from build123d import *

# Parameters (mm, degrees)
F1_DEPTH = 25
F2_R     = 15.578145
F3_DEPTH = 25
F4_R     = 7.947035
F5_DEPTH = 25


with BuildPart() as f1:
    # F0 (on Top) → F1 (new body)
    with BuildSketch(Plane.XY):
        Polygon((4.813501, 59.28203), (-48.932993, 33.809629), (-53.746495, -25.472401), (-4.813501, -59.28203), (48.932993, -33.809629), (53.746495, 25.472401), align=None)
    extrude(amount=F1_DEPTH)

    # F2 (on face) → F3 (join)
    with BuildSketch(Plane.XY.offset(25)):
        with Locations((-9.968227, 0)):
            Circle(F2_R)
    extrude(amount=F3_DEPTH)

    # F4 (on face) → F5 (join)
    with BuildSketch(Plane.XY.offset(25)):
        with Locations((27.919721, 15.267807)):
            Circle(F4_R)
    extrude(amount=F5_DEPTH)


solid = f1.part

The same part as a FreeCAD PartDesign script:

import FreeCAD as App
import Part
import Sketcher

V = App.Vector
Q = App.Units.Quantity


def add_polygon(sketch, points):
    """Adds a closed chain of lines whose ends are joined by coincident constraints."""
    first, n = sketch.GeometryCount, len(points)
    for a, b in zip(points, points[1:] + points[:1]):
        sketch.addGeometry(Part.LineSegment(App.Vector(*a, 0), App.Vector(*b, 0)), False)
    for i in range(n):
        sketch.addConstraint(Sketcher.Constraint("Coincident", first + i, 2, first + (i + 1) % n, 1))

doc = App.newDocument("Part")
body = doc.addObject("PartDesign::Body", "Body")

# Sketch on XY plane
sketch1 = body.newObject("Sketcher::SketchObject", "Sketch")
sketch1.AttachmentSupport = (doc.getObject("XY_Plane"), [""])
sketch1.MapMode = "FlatFace"
add_polygon(sketch1, [(4.813501, 59.28203), (-48.932993, 33.809629), (-53.746495, -25.472401), (-4.813501, -59.28203), (48.932993, -33.809629), (53.746495, 25.472401)])  # lines 0-5
sketch1.addConstraint(Sketcher.Constraint("Symmetric", 0, 2, 3, 2, -1, 1))
sketch1.addConstraint(Sketcher.Constraint("Symmetric", 1, 2, 4, 2, -1, 1))
sketch1.addConstraint(Sketcher.Constraint("Symmetric", 2, 2, 5, 2, -1, 1))
sketch1.addConstraint(Sketcher.Constraint("Equal", 0, 1))
sketch1.addConstraint(Sketcher.Constraint("Equal", 1, 2))
sketch1.addConstraint(Sketcher.Constraint("DistanceX", 2, 2, 5, 2, Q("9.627002 mm")))
sketch1.addConstraint(Sketcher.Constraint("DistanceY", 1, 2, -1, 1, Q("25.472401 mm")))
sketch1.addConstraint(Sketcher.Constraint("DistanceX", 1, 2, 0, 2, Q("4.813502 mm")))
sketch1.addConstraint(Sketcher.Constraint("DistanceY", 2, 2, 3, 2, Q("25.472401 mm")))
pad1 = body.newObject("PartDesign::Pad", "Pad")
pad1.Profile = sketch1
pad1.Length = 25

# Sketch on XY plane
sketch2 = body.newObject("Sketcher::SketchObject", "Sketch001")
sketch2.AttachmentSupport = (doc.getObject("XY_Plane"), [""])
sketch2.MapMode = "FlatFace"
sketch2.AttachmentOffset = App.Placement(V(0, 0, 25), App.Rotation())
sketch2.addGeometry(Part.Circle(V(-9.968227, 0, 0), V(0, 0, 1), 15.578145), False)
sketch2.addConstraint(Sketcher.Constraint("PointOnObject", 0, 3, -1))
sketch2.addConstraint(Sketcher.Constraint("Diameter", 0, Q("31.15629 mm")))
sketch2.addConstraint(Sketcher.Constraint("DistanceX", 0, 3, -1, 1, Q("9.968227 mm")))
pad2 = body.newObject("PartDesign::Pad", "Pad001")
pad2.Profile = sketch2
pad2.Length = 25

# Sketch on XY plane
sketch3 = body.newObject("Sketcher::SketchObject", "Sketch002")
sketch3.AttachmentSupport = (doc.getObject("XY_Plane"), [""])
sketch3.MapMode = "FlatFace"
sketch3.AttachmentOffset = App.Placement(V(0, 0, 25), App.Rotation())
sketch3.addGeometry(Part.Circle(V(27.919721, 15.267807, 0), V(0, 0, 1), 7.947035), False)
sketch3.addConstraint(Sketcher.Constraint("Diameter", 0, Q("15.89407 mm")))
sketch3.addConstraint(Sketcher.Constraint("DistanceX", -1, 1, 0, 3, Q("27.919721 mm")))
sketch3.addConstraint(Sketcher.Constraint("DistanceY", -1, 1, 0, 3, Q("15.267807 mm")))
pad3 = body.newObject("PartDesign::Pad", "Pad002")
pad3.Profile = sketch3
pad3.Length = 25

doc.recompute()
